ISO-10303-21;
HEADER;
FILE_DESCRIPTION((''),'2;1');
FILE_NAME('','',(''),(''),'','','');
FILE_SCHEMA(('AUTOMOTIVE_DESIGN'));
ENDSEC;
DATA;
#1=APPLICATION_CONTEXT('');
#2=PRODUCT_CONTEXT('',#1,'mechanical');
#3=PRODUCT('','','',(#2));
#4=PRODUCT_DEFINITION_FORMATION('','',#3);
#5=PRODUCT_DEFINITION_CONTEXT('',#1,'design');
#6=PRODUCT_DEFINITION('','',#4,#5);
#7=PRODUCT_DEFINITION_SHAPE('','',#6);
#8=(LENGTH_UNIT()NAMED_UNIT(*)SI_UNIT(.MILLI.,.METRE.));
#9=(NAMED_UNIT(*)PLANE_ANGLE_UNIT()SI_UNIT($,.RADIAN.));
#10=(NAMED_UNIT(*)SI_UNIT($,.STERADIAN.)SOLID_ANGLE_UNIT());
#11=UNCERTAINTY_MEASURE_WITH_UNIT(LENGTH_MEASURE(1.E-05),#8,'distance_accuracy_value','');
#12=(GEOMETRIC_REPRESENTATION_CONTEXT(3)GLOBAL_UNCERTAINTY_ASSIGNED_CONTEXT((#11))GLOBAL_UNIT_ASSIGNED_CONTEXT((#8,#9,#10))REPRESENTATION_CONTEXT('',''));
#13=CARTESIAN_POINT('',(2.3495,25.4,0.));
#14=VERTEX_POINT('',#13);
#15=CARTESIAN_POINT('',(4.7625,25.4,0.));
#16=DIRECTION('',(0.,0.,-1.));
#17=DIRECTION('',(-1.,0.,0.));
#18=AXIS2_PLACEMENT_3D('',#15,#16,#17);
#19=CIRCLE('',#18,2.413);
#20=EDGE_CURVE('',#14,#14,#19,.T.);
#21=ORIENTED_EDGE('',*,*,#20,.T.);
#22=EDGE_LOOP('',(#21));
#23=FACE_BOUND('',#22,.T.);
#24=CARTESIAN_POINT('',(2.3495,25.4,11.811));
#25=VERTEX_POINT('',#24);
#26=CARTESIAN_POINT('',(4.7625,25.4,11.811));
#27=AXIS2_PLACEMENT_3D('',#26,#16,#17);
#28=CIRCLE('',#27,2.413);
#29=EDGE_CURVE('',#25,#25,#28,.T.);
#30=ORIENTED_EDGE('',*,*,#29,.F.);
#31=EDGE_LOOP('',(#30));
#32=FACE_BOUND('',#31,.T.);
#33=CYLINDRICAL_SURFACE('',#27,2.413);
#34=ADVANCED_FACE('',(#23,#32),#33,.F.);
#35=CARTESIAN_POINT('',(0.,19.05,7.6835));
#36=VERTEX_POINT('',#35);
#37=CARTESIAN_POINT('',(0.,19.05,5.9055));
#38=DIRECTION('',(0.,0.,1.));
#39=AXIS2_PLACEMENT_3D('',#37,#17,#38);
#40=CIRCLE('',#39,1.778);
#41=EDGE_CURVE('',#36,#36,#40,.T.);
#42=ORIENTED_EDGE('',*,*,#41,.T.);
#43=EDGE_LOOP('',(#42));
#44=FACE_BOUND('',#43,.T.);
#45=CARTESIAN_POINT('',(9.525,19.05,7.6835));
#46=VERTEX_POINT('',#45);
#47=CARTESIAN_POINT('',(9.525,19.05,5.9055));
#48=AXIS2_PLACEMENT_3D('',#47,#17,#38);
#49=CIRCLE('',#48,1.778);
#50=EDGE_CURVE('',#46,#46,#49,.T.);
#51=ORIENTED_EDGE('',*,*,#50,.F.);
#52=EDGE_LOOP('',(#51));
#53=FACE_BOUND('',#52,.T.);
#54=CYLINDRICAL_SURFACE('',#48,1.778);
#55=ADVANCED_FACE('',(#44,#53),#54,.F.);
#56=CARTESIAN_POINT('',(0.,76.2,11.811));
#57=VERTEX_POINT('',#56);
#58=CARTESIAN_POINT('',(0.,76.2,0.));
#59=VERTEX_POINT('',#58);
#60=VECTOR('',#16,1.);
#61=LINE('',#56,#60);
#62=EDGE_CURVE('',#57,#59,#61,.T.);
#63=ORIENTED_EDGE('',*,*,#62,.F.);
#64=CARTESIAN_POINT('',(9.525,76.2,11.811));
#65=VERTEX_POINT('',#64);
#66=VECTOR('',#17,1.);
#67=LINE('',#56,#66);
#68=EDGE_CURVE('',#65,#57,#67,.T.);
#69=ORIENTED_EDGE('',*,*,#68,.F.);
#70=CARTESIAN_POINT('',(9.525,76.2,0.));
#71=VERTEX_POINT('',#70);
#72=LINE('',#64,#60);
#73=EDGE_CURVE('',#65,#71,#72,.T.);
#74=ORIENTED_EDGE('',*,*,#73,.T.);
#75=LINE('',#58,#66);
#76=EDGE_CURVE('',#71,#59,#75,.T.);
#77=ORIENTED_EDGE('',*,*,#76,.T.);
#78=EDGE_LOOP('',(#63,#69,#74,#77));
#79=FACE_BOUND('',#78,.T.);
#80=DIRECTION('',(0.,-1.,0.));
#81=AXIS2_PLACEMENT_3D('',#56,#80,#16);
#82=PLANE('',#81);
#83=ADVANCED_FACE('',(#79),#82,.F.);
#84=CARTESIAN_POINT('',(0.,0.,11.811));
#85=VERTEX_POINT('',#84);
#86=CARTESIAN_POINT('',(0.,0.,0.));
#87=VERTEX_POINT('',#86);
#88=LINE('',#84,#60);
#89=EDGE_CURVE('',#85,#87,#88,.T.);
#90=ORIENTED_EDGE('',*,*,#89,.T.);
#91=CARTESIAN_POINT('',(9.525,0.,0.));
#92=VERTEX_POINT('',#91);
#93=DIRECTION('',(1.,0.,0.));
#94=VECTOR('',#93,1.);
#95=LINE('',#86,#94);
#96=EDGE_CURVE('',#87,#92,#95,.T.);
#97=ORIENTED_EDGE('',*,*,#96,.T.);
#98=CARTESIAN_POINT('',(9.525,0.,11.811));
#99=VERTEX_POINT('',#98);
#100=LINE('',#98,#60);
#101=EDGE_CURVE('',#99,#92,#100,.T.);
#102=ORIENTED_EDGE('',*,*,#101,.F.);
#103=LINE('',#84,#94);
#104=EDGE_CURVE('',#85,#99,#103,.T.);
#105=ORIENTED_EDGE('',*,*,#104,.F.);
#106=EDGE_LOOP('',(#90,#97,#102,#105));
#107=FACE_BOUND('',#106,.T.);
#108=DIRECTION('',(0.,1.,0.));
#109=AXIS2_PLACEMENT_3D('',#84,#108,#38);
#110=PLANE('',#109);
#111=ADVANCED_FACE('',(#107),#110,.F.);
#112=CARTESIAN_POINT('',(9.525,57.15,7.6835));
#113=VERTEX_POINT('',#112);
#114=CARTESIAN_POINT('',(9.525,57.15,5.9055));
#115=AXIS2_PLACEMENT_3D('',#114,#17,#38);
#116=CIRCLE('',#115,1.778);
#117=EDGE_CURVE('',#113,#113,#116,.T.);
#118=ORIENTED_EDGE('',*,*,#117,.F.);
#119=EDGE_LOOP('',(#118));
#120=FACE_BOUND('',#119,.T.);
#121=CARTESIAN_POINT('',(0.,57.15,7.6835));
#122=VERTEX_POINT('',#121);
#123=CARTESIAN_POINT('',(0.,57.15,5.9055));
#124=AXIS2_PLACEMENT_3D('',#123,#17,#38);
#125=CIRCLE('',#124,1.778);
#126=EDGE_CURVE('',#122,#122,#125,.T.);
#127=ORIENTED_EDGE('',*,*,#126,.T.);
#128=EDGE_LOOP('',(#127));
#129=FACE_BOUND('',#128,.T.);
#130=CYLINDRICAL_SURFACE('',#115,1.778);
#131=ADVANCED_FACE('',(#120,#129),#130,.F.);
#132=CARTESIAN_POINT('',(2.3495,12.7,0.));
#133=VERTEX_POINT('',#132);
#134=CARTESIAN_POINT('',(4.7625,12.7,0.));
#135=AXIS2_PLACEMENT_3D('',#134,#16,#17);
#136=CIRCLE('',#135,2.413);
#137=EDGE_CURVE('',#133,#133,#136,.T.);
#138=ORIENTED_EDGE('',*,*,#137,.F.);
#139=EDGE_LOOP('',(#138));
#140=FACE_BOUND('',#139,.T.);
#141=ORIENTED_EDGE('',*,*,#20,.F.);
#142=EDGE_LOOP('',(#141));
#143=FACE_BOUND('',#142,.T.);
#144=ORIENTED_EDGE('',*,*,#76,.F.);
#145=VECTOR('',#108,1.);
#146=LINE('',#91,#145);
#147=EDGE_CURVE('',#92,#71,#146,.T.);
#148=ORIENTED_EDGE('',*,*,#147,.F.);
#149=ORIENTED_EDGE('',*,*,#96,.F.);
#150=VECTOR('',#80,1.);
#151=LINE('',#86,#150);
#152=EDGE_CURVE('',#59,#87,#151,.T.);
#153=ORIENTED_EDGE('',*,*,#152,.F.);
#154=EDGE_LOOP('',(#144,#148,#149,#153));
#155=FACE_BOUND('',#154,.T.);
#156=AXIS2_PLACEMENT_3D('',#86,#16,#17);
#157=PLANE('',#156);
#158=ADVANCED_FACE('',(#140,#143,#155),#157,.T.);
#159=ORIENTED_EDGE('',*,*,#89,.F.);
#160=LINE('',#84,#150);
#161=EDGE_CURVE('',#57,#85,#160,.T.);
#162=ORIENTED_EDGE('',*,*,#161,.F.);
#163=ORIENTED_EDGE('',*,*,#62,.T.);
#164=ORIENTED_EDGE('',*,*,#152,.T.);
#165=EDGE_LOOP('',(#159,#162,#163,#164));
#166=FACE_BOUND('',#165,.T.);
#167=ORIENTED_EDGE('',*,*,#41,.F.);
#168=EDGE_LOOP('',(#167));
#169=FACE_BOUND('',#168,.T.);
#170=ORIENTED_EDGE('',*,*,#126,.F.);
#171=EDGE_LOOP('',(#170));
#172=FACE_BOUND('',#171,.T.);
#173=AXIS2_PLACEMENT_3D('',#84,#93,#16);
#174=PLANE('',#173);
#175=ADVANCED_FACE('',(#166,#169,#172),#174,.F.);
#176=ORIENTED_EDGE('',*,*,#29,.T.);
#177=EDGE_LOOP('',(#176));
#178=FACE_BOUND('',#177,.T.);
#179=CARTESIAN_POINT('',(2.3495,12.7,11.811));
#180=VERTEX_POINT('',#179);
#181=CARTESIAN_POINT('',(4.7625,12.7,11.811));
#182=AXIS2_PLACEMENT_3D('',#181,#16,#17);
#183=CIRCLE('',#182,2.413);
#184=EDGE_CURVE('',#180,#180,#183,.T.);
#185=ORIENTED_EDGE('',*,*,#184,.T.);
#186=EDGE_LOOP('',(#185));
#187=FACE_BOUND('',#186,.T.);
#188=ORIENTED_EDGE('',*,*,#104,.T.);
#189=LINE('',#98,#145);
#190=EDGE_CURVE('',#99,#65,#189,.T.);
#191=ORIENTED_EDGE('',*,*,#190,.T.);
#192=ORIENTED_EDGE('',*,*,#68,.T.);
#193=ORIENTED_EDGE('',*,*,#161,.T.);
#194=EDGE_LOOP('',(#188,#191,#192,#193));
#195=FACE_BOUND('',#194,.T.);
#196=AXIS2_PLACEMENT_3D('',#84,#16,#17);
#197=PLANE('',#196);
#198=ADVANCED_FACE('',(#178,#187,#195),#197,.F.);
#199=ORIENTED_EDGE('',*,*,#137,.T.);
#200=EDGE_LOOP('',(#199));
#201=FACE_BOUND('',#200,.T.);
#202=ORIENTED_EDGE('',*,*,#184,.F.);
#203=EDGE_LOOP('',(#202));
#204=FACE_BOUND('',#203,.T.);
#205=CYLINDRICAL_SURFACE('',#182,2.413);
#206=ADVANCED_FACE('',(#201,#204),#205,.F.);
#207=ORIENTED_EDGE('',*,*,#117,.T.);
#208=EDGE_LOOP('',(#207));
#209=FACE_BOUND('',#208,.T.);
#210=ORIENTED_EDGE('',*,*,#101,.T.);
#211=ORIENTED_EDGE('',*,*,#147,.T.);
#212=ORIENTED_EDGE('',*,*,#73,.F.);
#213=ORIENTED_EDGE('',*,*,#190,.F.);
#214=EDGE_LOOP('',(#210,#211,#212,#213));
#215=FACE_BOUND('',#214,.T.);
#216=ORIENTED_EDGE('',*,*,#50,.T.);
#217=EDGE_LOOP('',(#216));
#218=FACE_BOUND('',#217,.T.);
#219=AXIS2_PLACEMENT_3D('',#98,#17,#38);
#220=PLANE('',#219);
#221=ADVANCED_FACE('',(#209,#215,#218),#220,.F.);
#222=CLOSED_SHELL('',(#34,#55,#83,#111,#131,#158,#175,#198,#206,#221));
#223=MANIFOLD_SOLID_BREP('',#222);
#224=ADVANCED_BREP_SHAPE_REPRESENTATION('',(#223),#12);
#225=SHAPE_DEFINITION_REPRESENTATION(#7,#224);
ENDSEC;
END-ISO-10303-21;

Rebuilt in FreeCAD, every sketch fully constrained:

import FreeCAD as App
import Part
import Sketcher

V = App.Vector
Q = App.Units.Quantity


def add_polygon(sketch, points):
    """Adds a closed chain of lines whose ends are joined by coincident constraints."""
    first, n = sketch.GeometryCount, len(points)
    for a, b in zip(points, points[1:] + points[:1]):
        sketch.addGeometry(Part.LineSegment(App.Vector(*a, 0), App.Vector(*b, 0)), False)
    for i in range(n):
        sketch.addConstraint(Sketcher.Constraint("Coincident", first + i, 2, first + (i + 1) % n, 1))

doc = App.newDocument("Part")
body = doc.addObject("PartDesign::Body", "Body")

# Sketch on XY plane
sketch1 = body.newObject("Sketcher::SketchObject", "Sketch")
sketch1.AttachmentSupport = (doc.getObject("XY_Plane"), [""])
sketch1.MapMode = "FlatFace"
add_polygon(sketch1, [(0, 76.2), (0, 0), (9.525, 0), (9.525, 76.2)])  # lines 0-3
sketch1.addConstraint(Sketcher.Constraint("Vertical", 0))
sketch1.addConstraint(Sketcher.Constraint("Horizontal", 1))
sketch1.addConstraint(Sketcher.Constraint("Vertical", 2))
sketch1.addConstraint(Sketcher.Constraint("Horizontal", 3))
sketch1.addConstraint(Sketcher.Constraint("Coincident", 0, 2, -1, 1))
sketch1.addConstraint(Sketcher.Constraint("DistanceY", 0, 2, 0, 1, Q("3 in")))
sketch1.addConstraint(Sketcher.Constraint("DistanceX", 1, 1, 1, 2, Q("0.375 in")))
pad1 = body.newObject("PartDesign::Pad", "Pad")
pad1.Profile = sketch1
pad1.Length = Q("0.465 in")

# Sketch on YZ plane
sketch2 = body.newObject("Sketcher::SketchObject", "Sketch001")
sketch2.AttachmentSupport = (doc.getObject("YZ_Plane"), [""])
sketch2.MapMode = "FlatFace"
sketch2.addGeometry(Part.Circle(V(57.15, 5.9055, 0), V(0, 0, 1), 1.778), False)
sketch2.addGeometry(Part.Circle(V(19.05, 5.9055, 0), V(0, 0, 1), 1.778), False)
sketch2.addConstraint(Sketcher.Constraint("Equal", 0, 1))
sketch2.addConstraint(Sketcher.Constraint("Horizontal", 0, 3, 1, 3))
sketch2.addConstraint(Sketcher.Constraint("Diameter", 0, Q("0.14 in")))
sketch2.addConstraint(Sketcher.Constraint("DistanceX", 1, 3, 0, 3, Q("1.5 in")))
sketch2.addConstraint(Sketcher.Constraint("DistanceX", -1, 1, 0, 3, Q("2.25 in")))
sketch2.addConstraint(Sketcher.Constraint("DistanceY", -1, 1, 0, 3, Q("0.2325 in")))
pocket1 = body.newObject("PartDesign::Pocket", "Pocket")
pocket1.Profile = sketch2
pocket1.Type = "ThroughAll"
pocket1.Reversed = True

# Sketch on XY plane
sketch3 = body.newObject("Sketcher::SketchObject", "Sketch002")
sketch3.AttachmentSupport = (doc.getObject("XY_Plane"), [""])
sketch3.MapMode = "FlatFace"
sketch3.addGeometry(Part.Circle(V(4.7625, 25.4, 0), V(0, 0, 1), 2.413), False)
sketch3.addGeometry(Part.Circle(V(4.7625, 12.7, 0), V(0, 0, 1), 2.413), False)
sketch3.addConstraint(Sketcher.Constraint("Equal", 0, 1))
sketch3.addConstraint(Sketcher.Constraint("Vertical", 0, 3, 1, 3))
sketch3.addConstraint(Sketcher.Constraint("Diameter", 0, Q("0.19 in")))
sketch3.addConstraint(Sketcher.Constraint("DistanceY", -1, 1, 0, 3, Q("1 in")))
sketch3.addConstraint(Sketcher.Constraint("DistanceY", -1, 1, 1, 3, Q("0.5 in")))
sketch3.addConstraint(Sketcher.Constraint("DistanceX", -1, 1, 0, 3, Q("0.1875 in")))
pocket2 = body.newObject("PartDesign::Pocket", "Pocket001")
pocket2.Profile = sketch3
pocket2.Type = "ThroughAll"
pocket2.Reversed = True

doc.recompute()
